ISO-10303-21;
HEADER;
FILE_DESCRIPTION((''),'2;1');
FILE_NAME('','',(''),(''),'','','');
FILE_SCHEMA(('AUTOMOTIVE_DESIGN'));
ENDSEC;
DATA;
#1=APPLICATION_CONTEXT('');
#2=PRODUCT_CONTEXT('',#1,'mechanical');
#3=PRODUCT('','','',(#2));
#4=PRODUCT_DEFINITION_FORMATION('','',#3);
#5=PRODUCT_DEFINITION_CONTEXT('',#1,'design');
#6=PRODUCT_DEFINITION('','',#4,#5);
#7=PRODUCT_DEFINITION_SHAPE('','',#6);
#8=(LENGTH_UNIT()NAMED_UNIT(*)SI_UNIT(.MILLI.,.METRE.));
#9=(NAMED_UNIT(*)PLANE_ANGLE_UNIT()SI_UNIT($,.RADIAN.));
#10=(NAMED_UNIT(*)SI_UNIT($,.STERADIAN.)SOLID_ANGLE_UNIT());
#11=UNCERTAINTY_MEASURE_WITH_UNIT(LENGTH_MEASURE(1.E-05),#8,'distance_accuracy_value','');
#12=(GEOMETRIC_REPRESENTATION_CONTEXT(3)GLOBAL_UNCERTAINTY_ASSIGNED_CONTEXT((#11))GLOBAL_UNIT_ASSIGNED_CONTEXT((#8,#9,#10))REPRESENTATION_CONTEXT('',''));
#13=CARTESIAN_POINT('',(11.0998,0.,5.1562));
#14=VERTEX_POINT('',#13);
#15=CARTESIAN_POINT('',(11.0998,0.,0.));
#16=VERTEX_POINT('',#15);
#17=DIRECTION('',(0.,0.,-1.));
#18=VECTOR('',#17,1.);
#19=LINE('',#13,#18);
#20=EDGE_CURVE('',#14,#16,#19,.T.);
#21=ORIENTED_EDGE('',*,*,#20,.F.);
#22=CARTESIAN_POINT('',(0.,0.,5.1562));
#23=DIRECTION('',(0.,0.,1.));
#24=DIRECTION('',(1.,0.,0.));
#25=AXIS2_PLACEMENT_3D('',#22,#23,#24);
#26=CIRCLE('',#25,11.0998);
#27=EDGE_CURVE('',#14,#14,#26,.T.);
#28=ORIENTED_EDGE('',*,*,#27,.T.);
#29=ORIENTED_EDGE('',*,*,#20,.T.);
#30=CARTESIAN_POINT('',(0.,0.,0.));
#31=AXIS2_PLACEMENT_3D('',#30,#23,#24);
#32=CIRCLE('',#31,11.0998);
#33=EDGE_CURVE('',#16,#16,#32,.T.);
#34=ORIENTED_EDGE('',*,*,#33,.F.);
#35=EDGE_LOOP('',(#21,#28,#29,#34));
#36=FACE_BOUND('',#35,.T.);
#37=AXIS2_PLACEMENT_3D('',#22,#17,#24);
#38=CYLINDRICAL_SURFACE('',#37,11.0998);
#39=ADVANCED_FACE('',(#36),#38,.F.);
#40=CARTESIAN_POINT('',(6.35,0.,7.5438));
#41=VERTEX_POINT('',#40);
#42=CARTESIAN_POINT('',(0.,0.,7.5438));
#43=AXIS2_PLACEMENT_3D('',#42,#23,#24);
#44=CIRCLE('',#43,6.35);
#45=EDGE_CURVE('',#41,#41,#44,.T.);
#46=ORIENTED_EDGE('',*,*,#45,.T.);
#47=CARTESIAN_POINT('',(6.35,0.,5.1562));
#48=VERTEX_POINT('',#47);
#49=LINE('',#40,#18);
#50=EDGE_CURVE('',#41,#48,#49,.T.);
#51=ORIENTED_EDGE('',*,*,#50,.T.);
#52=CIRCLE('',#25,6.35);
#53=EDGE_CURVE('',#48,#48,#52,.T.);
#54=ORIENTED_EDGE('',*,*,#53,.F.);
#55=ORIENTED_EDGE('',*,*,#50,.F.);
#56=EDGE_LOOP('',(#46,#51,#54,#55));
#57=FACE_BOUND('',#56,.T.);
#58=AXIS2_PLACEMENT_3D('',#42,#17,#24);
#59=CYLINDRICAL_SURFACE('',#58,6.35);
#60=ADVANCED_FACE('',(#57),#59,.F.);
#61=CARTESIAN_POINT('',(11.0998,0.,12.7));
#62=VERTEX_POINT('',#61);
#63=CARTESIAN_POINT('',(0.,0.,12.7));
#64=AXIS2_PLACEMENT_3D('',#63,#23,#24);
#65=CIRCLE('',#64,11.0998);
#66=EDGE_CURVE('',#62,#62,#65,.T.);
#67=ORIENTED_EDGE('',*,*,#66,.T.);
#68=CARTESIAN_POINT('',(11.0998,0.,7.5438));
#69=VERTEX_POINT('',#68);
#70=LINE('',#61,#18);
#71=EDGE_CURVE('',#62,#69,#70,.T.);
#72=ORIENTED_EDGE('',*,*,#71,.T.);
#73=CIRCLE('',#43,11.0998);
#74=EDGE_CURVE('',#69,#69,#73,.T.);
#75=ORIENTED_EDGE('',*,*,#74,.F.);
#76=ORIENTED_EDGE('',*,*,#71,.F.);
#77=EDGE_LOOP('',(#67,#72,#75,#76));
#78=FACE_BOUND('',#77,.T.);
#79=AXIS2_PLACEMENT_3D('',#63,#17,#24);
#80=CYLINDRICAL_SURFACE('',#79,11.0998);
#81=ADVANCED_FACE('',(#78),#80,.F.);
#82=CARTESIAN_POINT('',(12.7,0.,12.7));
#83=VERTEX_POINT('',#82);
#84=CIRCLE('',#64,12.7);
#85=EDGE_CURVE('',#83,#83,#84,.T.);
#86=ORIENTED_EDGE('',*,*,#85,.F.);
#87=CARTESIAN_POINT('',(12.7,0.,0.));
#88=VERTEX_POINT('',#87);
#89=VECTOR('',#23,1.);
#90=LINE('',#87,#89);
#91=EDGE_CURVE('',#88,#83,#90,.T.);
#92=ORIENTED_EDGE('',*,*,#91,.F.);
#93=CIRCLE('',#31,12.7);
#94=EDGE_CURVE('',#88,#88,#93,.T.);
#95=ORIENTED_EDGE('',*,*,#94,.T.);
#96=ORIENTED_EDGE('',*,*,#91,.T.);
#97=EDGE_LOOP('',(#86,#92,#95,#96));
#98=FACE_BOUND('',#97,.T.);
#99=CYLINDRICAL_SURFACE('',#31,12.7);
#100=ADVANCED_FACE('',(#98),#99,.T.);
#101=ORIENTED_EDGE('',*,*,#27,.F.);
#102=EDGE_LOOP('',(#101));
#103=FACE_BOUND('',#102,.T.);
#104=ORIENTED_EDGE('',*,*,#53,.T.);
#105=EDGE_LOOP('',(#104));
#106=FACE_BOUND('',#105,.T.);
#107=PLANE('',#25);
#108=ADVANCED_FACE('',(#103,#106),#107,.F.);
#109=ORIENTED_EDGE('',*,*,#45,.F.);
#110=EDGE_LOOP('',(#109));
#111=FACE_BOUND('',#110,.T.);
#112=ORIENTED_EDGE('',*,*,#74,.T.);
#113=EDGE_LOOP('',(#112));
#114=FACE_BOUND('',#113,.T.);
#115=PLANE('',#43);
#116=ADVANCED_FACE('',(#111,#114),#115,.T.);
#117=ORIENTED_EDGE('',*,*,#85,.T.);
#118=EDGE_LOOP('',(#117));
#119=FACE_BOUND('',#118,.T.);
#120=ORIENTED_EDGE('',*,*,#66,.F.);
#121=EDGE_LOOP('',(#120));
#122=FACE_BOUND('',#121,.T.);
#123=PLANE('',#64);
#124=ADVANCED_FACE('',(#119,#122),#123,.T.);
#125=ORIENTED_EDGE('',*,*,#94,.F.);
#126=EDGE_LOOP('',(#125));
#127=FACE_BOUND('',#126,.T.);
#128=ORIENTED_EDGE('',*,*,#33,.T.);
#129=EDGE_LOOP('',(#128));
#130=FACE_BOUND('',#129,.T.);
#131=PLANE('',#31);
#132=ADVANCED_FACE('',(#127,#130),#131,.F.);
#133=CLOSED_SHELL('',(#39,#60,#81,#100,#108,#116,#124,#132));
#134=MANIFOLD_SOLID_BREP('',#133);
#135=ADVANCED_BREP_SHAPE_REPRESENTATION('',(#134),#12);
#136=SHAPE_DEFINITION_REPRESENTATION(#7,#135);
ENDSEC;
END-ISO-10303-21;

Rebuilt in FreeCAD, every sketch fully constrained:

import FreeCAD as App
import Part
import Sketcher
Q = App.Units.Quantity


def add_polygon(sketch, points):
    """Adds a closed chain of lines whose ends are joined by coincident constraints."""
    first, n = sketch.GeometryCount, len(points)
    for a, b in zip(points, points[1:] + points[:1]):
        sketch.addGeometry(Part.LineSegment(App.Vector(*a, 0), App.Vector(*b, 0)), False)
    for i in range(n):
        sketch.addConstraint(Sketcher.Constraint("Coincident", first + i, 2, first + (i + 1) % n, 1))

doc = App.newDocument("Part")
body = doc.addObject("PartDesign::Body", "Body")

# Sketch on XZ plane
sketch1 = doc.addObject("Sketcher::SketchObject", "Sketch")
body.addObject(sketch1)
sketch1.AttachmentSupport = (doc.XZ_Plane, [""])
sketch1.MapMode = "FlatFace"
add_polygon(sketch1, [(11.1, 5.2), (11.1, 0), (12.7, 0), (12.7, 12.7), (11.1, 12.7), (11.1, 7.5), (6.3, 7.5), (6.3, 5.2)])  # lines 0-7
sketch1.addConstraint(Sketcher.Constraint("Vertical", 0))
sketch1.addConstraint(Sketcher.Constraint("Horizontal", 1))
sketch1.addConstraint(Sketcher.Constraint("Vertical", 2))
sketch1.addConstraint(Sketcher.Constraint("Horizontal", 3))
sketch1.addConstraint(Sketcher.Constraint("Vertical", 4))
sketch1.addConstraint(Sketcher.Constraint("Horizontal", 5))
sketch1.addConstraint(Sketcher.Constraint("Vertical", 6))
sketch1.addConstraint(Sketcher.Constraint("Horizontal", 7))
sketch1.addConstraint(Sketcher.Constraint("PointOnObject", 0, 2, -1))
sketch1.addConstraint(Sketcher.Constraint("Vertical", 0, 2, 3, 2))
sketch1.addConstraint(Sketcher.Constraint("Equal", 0, 4))
sketch1.addConstraint(Sketcher.Constraint("DistanceY", 2, 1, 2, 2, Q("0.5 in")))
sketch1.addConstraint(Sketcher.Constraint("DistanceX", -1, 1, 1, 2, Q("0.5 in")))
sketch1.addConstraint(Sketcher.Constraint("DistanceX", 1, 1, 1, 2, Q("0.063 in")))
sketch1.addConstraint(Sketcher.Constraint("DistanceX", 5, 2, 5, 1, Q("0.187 in")))
sketch1.addConstraint(Sketcher.Constraint("DistanceY", 0, 2, 0, 1, Q("0.203 in")))
revolution = doc.addObject("PartDesign::Revolution", "Revolution")
body.addObject(revolution)
revolution.Profile = sketch1
revolution.ReferenceAxis = (sketch1, ["V_Axis"])
revolution.Angle = 360

doc.recompute()
